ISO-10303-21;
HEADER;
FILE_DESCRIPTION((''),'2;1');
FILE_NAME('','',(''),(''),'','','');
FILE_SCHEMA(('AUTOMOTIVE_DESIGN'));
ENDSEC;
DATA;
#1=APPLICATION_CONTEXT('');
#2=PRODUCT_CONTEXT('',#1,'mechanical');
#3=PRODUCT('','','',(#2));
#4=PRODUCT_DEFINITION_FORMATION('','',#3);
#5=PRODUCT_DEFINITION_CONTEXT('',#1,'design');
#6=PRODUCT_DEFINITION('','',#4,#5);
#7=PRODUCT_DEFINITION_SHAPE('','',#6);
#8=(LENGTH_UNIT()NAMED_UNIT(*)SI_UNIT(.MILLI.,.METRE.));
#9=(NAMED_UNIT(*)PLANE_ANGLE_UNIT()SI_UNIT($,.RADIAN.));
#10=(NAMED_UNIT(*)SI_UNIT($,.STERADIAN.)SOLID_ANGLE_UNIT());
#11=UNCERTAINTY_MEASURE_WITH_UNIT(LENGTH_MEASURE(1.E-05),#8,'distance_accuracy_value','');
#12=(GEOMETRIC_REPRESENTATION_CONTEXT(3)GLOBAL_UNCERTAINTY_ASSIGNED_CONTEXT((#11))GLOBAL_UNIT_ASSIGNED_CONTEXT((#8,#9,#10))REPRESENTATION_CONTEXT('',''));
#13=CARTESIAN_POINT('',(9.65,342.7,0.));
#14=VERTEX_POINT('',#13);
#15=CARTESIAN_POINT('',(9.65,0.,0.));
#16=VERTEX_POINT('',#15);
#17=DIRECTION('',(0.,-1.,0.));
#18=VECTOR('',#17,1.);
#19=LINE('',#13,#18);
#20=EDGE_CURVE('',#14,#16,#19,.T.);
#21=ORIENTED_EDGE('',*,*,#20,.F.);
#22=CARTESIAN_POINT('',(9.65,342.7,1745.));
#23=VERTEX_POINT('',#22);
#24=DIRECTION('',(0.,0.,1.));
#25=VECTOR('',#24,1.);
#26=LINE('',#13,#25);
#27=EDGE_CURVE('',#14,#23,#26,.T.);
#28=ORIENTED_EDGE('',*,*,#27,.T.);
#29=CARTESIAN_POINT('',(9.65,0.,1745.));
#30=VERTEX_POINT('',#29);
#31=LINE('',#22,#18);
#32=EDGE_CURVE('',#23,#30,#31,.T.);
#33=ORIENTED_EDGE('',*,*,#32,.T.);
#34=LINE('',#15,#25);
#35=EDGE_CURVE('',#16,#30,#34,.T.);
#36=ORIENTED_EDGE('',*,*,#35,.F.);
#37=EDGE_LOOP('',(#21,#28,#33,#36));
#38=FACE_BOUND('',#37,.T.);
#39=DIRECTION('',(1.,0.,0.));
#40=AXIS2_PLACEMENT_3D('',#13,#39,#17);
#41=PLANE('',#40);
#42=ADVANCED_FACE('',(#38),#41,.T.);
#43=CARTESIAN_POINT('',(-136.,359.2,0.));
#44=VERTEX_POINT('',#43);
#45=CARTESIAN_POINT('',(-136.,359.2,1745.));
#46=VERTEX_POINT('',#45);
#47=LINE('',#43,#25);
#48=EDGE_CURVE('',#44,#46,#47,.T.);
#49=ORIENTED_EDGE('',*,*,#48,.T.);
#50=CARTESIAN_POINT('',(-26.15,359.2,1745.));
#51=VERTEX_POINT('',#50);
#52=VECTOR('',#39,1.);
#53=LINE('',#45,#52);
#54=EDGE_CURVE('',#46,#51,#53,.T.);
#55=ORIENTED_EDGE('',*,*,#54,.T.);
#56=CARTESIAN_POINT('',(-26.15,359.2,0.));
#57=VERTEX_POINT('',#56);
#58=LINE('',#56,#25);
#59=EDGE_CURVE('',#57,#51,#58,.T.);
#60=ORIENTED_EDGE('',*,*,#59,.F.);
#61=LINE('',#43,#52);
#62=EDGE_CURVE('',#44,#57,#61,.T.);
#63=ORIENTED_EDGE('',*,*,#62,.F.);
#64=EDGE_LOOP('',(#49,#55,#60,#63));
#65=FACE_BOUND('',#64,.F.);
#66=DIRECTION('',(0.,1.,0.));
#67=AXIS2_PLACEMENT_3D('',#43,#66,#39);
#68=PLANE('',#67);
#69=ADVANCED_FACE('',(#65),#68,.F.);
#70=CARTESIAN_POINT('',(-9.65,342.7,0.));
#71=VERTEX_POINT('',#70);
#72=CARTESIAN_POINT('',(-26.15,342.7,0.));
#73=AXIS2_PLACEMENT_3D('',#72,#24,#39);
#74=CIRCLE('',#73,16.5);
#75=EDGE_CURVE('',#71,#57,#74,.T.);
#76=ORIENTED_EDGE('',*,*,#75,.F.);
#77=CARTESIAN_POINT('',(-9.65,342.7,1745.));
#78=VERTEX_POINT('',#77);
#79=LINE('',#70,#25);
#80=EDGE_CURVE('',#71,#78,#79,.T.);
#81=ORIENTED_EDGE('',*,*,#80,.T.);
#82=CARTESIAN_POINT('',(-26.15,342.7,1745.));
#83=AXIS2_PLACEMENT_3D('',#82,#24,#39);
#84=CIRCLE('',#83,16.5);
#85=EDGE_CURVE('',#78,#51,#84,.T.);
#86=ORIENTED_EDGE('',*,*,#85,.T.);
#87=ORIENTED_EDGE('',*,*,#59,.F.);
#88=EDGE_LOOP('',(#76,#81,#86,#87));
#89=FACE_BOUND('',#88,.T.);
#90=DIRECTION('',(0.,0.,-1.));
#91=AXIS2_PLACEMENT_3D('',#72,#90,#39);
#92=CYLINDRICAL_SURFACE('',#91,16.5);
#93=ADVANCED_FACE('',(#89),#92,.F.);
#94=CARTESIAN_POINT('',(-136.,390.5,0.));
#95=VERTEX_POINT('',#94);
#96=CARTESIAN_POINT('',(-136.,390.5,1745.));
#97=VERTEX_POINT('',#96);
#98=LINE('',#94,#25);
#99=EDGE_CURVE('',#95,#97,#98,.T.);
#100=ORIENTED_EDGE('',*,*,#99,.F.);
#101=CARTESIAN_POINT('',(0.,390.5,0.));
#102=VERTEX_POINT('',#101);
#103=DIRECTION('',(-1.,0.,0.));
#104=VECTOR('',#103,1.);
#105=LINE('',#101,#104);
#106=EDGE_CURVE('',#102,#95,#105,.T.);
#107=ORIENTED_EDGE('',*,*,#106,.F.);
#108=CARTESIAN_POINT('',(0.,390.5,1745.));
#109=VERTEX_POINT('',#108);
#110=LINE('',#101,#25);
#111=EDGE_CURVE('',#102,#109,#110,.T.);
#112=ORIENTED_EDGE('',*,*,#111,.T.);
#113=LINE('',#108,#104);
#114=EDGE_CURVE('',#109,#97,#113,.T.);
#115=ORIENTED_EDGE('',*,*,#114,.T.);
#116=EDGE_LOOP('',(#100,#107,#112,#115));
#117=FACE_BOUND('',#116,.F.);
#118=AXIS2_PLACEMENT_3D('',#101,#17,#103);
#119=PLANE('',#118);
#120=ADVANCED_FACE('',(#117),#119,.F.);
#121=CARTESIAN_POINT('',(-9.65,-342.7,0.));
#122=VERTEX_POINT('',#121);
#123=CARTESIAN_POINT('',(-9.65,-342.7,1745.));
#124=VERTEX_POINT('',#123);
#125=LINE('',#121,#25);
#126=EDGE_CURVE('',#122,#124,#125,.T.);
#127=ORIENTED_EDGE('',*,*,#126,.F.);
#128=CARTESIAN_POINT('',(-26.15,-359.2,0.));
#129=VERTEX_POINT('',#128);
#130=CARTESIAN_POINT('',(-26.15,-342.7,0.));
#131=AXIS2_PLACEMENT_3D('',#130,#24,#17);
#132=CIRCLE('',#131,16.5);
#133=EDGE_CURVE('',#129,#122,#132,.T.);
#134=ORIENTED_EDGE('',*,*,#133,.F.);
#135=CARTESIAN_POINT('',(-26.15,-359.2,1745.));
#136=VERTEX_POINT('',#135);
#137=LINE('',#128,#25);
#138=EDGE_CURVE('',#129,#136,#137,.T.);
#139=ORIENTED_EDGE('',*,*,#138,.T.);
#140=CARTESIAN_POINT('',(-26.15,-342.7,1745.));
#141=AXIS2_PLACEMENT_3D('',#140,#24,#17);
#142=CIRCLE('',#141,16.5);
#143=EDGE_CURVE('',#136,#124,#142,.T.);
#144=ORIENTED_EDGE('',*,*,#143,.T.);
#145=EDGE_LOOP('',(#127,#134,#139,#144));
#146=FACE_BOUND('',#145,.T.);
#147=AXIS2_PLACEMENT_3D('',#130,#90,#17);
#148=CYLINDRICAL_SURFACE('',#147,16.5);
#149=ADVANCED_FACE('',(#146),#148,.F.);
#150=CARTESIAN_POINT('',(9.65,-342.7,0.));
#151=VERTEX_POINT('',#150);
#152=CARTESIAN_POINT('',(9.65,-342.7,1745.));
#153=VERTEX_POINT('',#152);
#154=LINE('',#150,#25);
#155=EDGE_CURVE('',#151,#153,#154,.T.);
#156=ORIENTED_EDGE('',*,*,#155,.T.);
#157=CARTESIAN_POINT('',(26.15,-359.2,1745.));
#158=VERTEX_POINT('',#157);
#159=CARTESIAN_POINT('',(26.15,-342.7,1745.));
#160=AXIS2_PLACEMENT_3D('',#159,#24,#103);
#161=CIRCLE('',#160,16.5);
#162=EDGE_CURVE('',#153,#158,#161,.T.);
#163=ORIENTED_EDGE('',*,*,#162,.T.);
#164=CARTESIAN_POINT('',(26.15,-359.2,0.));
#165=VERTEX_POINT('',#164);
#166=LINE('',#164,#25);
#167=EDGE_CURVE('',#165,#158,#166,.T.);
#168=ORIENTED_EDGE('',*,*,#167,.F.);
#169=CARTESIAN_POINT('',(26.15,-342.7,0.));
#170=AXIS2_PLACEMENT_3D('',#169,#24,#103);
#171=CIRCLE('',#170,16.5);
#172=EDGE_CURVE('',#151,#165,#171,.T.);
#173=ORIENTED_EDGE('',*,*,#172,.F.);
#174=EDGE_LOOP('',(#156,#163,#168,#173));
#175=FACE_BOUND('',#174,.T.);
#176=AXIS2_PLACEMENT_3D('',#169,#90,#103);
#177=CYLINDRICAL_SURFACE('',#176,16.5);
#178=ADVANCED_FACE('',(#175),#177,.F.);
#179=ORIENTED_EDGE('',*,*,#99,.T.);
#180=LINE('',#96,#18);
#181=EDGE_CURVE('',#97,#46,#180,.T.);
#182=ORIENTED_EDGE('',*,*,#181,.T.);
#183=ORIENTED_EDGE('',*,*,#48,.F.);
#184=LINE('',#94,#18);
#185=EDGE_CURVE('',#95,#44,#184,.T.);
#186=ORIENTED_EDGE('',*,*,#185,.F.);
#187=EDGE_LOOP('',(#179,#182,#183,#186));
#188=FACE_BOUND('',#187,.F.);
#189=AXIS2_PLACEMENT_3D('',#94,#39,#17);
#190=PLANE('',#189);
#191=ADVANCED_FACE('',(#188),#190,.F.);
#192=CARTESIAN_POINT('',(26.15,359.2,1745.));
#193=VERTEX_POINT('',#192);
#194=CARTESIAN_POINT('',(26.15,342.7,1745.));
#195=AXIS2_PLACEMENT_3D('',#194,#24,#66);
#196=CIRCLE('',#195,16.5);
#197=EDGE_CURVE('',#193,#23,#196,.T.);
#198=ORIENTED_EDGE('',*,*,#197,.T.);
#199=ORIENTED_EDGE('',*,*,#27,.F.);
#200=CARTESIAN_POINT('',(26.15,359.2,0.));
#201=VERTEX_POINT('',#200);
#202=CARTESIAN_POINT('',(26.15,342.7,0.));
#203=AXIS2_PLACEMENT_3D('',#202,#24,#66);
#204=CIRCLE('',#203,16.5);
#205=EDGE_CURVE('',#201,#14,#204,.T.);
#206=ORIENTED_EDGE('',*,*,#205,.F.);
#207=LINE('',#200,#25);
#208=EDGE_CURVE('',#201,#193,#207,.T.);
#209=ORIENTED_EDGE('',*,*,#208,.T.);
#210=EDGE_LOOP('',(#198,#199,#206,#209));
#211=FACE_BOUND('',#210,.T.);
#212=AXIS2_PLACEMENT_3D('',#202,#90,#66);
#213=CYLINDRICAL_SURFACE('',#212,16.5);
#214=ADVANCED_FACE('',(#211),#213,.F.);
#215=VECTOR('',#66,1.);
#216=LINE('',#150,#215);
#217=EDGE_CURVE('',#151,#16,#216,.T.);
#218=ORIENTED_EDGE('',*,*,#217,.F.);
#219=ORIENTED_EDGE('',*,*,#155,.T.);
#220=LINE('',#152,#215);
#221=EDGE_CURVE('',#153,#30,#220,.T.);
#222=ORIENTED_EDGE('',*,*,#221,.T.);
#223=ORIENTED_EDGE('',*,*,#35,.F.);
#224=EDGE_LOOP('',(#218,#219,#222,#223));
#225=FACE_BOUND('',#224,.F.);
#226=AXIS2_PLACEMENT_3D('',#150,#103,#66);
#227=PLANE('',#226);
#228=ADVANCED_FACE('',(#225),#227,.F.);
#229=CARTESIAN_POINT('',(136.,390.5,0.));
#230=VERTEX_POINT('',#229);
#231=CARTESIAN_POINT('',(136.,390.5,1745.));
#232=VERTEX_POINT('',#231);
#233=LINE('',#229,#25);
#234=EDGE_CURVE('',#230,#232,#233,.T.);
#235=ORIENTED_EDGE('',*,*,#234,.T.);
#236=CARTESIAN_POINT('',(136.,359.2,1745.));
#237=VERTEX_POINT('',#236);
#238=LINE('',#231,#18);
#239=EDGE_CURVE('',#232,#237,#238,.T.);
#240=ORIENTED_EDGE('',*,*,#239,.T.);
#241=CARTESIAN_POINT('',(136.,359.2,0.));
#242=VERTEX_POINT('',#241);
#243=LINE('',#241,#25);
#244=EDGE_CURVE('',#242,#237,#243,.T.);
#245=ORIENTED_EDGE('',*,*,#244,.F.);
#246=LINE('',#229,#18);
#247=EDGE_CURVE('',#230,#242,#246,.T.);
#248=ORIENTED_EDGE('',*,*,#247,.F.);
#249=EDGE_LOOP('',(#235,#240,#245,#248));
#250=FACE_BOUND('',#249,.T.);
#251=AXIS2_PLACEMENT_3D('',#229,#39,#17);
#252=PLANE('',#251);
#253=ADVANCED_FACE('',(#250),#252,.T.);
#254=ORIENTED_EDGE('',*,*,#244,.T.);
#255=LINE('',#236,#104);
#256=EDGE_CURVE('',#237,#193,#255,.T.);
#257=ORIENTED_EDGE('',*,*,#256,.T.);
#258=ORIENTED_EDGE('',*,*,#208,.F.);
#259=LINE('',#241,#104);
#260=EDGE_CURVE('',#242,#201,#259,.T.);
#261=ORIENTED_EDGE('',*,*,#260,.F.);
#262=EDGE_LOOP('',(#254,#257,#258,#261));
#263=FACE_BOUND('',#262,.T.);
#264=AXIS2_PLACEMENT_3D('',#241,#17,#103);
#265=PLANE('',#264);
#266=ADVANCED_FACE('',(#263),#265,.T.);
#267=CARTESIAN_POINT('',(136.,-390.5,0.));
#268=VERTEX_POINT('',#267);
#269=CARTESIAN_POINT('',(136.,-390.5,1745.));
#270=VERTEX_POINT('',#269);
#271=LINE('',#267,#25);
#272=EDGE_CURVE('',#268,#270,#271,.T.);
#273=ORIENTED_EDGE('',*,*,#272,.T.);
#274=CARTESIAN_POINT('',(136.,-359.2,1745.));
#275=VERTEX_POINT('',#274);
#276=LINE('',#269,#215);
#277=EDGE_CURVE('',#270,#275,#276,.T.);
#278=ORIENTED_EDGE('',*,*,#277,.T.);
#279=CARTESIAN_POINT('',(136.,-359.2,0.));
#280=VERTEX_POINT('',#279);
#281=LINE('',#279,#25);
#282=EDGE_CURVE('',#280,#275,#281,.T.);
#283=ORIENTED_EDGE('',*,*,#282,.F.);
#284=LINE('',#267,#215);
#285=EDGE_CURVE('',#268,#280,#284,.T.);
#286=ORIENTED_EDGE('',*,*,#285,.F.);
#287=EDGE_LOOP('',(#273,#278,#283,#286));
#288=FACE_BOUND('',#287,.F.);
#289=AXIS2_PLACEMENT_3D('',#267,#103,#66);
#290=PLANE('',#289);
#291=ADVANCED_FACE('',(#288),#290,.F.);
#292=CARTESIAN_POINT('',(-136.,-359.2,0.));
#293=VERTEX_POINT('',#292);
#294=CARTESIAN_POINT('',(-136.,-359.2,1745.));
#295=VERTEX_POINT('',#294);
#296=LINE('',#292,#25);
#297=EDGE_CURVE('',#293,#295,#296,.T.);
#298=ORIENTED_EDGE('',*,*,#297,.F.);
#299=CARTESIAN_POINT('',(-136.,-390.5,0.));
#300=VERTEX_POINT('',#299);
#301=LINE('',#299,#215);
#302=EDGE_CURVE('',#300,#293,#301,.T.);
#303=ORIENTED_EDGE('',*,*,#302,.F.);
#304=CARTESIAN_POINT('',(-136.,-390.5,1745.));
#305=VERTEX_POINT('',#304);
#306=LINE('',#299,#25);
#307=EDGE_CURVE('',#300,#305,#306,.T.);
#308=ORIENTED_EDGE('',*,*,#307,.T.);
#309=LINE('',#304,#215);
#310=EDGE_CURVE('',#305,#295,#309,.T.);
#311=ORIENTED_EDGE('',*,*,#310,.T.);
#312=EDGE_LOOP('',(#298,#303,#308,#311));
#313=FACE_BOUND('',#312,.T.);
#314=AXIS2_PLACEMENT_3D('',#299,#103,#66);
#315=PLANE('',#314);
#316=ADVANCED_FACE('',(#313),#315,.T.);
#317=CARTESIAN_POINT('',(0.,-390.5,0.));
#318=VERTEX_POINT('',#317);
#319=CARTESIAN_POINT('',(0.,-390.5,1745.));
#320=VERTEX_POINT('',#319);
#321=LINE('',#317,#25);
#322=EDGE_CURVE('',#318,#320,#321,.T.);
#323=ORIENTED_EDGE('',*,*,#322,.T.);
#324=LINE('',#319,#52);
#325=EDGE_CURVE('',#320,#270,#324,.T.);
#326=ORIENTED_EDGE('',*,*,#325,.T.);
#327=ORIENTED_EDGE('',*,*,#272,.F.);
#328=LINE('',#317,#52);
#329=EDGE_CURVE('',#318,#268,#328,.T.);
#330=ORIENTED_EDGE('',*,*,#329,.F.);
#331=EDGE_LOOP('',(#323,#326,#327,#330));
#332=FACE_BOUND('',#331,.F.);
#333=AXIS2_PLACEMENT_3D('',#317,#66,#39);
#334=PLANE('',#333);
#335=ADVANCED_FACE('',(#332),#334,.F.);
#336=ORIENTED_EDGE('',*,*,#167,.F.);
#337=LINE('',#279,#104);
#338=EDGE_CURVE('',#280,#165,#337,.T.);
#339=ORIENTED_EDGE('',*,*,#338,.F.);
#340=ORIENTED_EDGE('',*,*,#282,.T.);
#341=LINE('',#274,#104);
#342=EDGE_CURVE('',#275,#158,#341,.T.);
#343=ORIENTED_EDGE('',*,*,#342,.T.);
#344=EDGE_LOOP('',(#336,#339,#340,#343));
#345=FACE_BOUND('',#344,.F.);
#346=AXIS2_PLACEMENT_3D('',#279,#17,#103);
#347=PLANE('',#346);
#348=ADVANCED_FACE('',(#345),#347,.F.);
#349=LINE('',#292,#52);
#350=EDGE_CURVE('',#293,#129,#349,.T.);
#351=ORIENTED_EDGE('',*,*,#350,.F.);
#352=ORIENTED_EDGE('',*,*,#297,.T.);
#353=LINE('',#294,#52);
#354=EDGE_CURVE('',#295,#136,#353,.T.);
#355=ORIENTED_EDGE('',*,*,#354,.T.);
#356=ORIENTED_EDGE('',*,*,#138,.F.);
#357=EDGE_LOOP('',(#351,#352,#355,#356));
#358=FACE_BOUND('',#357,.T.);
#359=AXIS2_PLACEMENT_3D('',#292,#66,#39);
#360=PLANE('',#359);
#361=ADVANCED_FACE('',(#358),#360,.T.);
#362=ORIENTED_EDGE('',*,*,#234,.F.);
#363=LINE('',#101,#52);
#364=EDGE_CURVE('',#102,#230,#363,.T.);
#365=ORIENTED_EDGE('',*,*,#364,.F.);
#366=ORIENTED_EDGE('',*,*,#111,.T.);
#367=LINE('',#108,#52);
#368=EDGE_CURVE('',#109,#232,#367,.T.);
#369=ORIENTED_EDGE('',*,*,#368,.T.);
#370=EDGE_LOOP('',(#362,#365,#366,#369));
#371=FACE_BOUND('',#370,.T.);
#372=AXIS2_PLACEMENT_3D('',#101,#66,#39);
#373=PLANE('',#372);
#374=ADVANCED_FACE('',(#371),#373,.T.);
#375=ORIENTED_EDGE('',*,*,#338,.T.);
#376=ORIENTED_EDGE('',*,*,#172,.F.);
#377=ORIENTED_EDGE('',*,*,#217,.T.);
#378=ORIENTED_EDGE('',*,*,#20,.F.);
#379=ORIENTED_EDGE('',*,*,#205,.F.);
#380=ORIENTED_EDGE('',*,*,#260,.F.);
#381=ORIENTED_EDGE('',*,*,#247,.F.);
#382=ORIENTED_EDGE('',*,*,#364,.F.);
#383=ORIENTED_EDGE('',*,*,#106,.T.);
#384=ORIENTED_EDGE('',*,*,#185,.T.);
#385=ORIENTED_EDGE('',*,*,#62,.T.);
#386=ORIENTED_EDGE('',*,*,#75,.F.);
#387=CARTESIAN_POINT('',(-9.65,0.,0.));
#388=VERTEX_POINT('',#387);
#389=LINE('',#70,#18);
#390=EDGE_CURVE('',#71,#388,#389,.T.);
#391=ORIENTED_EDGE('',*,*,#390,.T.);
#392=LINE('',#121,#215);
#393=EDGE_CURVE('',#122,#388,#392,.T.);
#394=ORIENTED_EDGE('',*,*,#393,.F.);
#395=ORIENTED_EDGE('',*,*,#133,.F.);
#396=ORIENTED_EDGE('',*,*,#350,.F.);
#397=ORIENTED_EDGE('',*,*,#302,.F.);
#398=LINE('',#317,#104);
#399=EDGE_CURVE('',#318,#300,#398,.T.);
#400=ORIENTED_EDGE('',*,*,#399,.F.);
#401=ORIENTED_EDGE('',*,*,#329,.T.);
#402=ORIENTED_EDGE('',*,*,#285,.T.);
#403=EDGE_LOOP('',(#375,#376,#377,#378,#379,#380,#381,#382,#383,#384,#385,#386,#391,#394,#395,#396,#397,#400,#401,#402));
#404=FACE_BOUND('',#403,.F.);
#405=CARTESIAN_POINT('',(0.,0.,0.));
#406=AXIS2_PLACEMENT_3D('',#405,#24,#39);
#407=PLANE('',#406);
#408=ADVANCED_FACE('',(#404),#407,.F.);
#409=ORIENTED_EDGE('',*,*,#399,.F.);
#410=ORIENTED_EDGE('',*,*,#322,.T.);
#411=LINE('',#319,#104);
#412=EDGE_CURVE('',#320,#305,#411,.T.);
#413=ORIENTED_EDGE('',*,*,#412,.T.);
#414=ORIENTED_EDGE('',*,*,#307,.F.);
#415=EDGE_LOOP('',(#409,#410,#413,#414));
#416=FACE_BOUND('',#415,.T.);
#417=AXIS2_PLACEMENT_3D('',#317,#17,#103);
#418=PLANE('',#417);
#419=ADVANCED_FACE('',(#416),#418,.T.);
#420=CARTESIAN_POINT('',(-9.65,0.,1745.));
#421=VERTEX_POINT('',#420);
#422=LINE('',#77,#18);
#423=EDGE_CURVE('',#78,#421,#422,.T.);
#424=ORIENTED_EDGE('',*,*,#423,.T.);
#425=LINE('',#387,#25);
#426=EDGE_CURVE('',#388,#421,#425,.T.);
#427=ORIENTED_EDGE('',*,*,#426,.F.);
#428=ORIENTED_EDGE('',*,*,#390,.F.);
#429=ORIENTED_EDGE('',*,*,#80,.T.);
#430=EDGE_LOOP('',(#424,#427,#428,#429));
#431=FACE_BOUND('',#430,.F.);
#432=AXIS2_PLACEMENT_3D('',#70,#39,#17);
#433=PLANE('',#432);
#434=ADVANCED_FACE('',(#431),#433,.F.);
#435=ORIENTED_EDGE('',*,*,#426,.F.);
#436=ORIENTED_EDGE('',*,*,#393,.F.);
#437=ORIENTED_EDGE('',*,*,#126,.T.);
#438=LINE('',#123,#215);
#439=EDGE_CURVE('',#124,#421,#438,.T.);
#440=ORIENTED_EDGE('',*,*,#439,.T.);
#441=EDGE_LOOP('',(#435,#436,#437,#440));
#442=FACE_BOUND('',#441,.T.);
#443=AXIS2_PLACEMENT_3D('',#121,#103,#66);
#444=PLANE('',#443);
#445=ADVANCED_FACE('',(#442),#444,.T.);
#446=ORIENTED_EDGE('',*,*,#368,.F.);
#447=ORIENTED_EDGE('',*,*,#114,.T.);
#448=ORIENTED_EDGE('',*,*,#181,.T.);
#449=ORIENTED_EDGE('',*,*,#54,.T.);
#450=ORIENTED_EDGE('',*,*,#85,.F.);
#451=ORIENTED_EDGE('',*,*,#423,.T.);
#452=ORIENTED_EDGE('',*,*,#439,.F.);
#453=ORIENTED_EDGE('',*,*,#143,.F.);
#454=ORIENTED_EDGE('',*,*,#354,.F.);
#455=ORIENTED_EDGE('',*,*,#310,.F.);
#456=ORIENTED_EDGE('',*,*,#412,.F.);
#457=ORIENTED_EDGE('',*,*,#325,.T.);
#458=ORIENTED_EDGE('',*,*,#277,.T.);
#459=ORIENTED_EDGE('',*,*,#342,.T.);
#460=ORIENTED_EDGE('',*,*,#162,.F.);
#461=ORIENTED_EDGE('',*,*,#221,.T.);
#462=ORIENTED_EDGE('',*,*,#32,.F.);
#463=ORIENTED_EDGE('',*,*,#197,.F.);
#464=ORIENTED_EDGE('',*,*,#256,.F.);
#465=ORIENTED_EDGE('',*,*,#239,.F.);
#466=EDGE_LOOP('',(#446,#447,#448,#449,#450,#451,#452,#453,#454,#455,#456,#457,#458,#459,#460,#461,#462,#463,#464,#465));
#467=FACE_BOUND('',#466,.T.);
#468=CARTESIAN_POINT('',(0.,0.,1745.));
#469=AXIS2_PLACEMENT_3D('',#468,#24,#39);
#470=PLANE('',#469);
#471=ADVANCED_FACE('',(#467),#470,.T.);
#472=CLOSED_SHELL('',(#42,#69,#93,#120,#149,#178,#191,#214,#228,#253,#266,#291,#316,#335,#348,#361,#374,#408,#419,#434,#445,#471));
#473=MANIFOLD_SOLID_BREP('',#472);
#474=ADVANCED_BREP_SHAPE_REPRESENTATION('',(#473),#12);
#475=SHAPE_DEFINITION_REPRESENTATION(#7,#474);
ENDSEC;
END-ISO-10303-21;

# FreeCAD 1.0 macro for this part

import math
import FreeCAD as App
import Part
import Sketcher
from FreeCAD import Vector

doc = App.newDocument("Part")
body = doc.addObject("PartDesign::Body", "Body")

# Sketch on XY plane
sketch1 = body.newObject("Sketcher::SketchObject", "Sketch")
sketch1.AttachmentSupport = (doc.getObject("XY_Plane"), [""])
sketch1.MapMode = "FlatFace"
sketch1.addGeometry(Part.LineSegment(Vector(-136, -359, 0), Vector(-136, -390, 0)), False)
sketch1.addGeometry(Part.LineSegment(Vector(-136, -390, 0), Vector(136, -390, 0)), False)
sketch1.addGeometry(Part.LineSegment(Vector(136, -390, 0), Vector(136, -359, 0)), False)
sketch1.addGeometry(Part.LineSegment(Vector(136, -359, 0), Vector(26, -359, 0)), False)
sketch1.addGeometry(Part.ArcOfCircle(Part.Circle(Vector(26, -343, 0), Vector(0, 0, 1), 16), math.radians(180), math.radians(270)), False)
sketch1.addGeometry(Part.LineSegment(Vector(10, -343, 0), Vector(10, 343, 0)), False)
sketch1.addGeometry(Part.ArcOfCircle(Part.Circle(Vector(26, 343, 0), Vector(0, 0, 1), 16), math.radians(90), math.radians(180)), False)
sketch1.addGeometry(Part.LineSegment(Vector(26, 359, 0), Vector(136, 359, 0)), False)
sketch1.addGeometry(Part.LineSegment(Vector(136, 359, 0), Vector(136, 390, 0)), False)
sketch1.addGeometry(Part.LineSegment(Vector(136, 390, 0), Vector(-136, 390, 0)), False)
sketch1.addGeometry(Part.LineSegment(Vector(-136, 390, 0), Vector(-136, 359, 0)), False)
sketch1.addGeometry(Part.LineSegment(Vector(-136, 359, 0), Vector(-26, 359, 0)), False)
sketch1.addGeometry(Part.ArcOfCircle(Part.Circle(Vector(-26, 343, 0), Vector(0, 0, 1), 16), math.radians(0), math.radians(90)), False)
sketch1.addGeometry(Part.LineSegment(Vector(-10, 343, 0), Vector(-10, -343, 0)), False)
sketch1.addGeometry(Part.ArcOfCircle(Part.Circle(Vector(-26, -343, 0), Vector(0, 0, 1), 16), math.radians(-90), math.radians(0)), False)
sketch1.addGeometry(Part.LineSegment(Vector(-26, -359, 0), Vector(-136, -359, 0)), False)
sketch1.addConstraint(Sketcher.Constraint("Coincident", 0, 2, 1, 1))
sketch1.addConstraint(Sketcher.Constraint("Coincident", 1, 2, 2, 1))
sketch1.addConstraint(Sketcher.Constraint("Coincident", 2, 2, 3, 1))
sketch1.addConstraint(Sketcher.Constraint("Tangent", 3, 2, 4, 2))
sketch1.addConstraint(Sketcher.Constraint("Tangent", 4, 1, 5, 1))
sketch1.addConstraint(Sketcher.Constraint("Tangent", 5, 2, 6, 2))
sketch1.addConstraint(Sketcher.Constraint("Tangent", 6, 1, 7, 1))
sketch1.addConstraint(Sketcher.Constraint("Coincident", 7, 2, 8, 1))
sketch1.addConstraint(Sketcher.Constraint("Coincident", 8, 2, 9, 1))
sketch1.addConstraint(Sketcher.Constraint("Coincident", 9, 2, 10, 1))
sketch1.addConstraint(Sketcher.Constraint("Coincident", 10, 2, 11, 1))
sketch1.addConstraint(Sketcher.Constraint("Tangent", 11, 2, 12, 2))
sketch1.addConstraint(Sketcher.Constraint("Tangent", 12, 1, 13, 1))
sketch1.addConstraint(Sketcher.Constraint("Tangent", 13, 2, 14, 2))
sketch1.addConstraint(Sketcher.Constraint("Tangent", 14, 1, 15, 1))
sketch1.addConstraint(Sketcher.Constraint("Coincident", 15, 2, 0, 1))
sketch1.addConstraint(Sketcher.Constraint("Vertical", 0))
sketch1.addConstraint(Sketcher.Constraint("Horizontal", 1))
sketch1.addConstraint(Sketcher.Constraint("Vertical", 2))
sketch1.addConstraint(Sketcher.Constraint("Horizontal", 3))
sketch1.addConstraint(Sketcher.Constraint("Vertical", 5))
sketch1.addConstraint(Sketcher.Constraint("Horizontal", 7))
sketch1.addConstraint(Sketcher.Constraint("Vertical", 8))
sketch1.addConstraint(Sketcher.Constraint("Horizontal", 9))
sketch1.addConstraint(Sketcher.Constraint("Vertical", 10))
sketch1.addConstraint(Sketcher.Constraint("Horizontal", 11))
sketch1.addConstraint(Sketcher.Constraint("Vertical", 13))
sketch1.addConstraint(Sketcher.Constraint("Horizontal", 15))
sketch1.addConstraint(Sketcher.Constraint("Equal", 4, 6))
sketch1.addConstraint(Sketcher.Constraint("Equal", 6, 12))
sketch1.addConstraint(Sketcher.Constraint("Equal", 12, 14))
sketch1.addConstraint(Sketcher.Constraint("Symmetric", 4, 3, 12, 3, -1, 1))
sketch1.addConstraint(Sketcher.Constraint("Symmetric", 0, 2, 8, 2, -1, 1))
sketch1.addConstraint(Sketcher.Constraint("Symmetric", 7, 2, 10, 2, -2))
sketch1.addConstraint(Sketcher.Constraint("Symmetric", 2, 2, 15, 2, -2))
sketch1.addConstraint(Sketcher.Constraint("Radius", 4, 16.5))
sketch1.addConstraint(Sketcher.Constraint("DistanceY", 0, 2, 0, 1, 31.3))
sketch1.addConstraint(Sketcher.Constraint("DistanceX", 0, 2, -1, 1, 136.0))
sketch1.addConstraint(Sketcher.Constraint("DistanceY", 0, 2, -1, 1, 390.5))
sketch1.addConstraint(Sketcher.Constraint("DistanceX", -1, 1, 4, 1, 9.65))
pad1 = body.newObject("PartDesign::Pad", "Pad")
pad1.Profile = sketch1
pad1.Length = 1745

doc.recompute()
